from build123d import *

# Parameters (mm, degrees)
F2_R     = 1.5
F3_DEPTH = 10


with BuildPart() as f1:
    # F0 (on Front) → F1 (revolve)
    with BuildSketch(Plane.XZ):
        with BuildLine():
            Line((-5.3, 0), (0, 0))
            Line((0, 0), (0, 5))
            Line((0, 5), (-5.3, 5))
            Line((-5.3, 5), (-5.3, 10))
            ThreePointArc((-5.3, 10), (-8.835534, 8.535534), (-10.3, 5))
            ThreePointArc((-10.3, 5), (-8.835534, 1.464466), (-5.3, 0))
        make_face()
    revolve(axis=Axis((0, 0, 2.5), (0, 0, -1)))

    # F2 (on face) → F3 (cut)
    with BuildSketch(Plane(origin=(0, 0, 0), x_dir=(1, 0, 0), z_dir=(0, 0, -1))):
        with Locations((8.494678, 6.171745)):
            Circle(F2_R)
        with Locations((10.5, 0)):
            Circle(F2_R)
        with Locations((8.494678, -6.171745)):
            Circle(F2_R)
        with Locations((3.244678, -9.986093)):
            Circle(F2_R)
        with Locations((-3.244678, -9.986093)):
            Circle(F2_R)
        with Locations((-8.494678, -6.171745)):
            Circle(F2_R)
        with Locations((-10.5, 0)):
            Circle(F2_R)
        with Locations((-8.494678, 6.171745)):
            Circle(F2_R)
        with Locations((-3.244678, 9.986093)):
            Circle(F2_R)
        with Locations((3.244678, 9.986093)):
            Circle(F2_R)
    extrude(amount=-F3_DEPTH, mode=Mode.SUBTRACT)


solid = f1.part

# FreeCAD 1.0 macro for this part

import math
import FreeCAD as App
import Part
import Sketcher
from FreeCAD import Vector
Q = App.Units.Quantity

doc = App.newDocument("Part")
body = doc.addObject("PartDesign::Body", "Body")

# Sketch on XZ plane
sketch1 = body.newObject("Sketcher::SketchObject", "Sketch")
sketch1.AttachmentSupport = (doc.getObject("XZ_Plane"), [""])
sketch1.MapMode = "FlatFace"
sketch1.addGeometry(Part.LineSegment(Vector(-5.3, 0, 0), Vector(0, 0, 0)), False)
sketch1.addGeometry(Part.LineSegment(Vector(0, 0, 0), Vector(0, 5, 0)), False)
sketch1.addGeometry(Part.LineSegment(Vector(0, 5, 0), Vector(-5.3, 5, 0)), False)
sketch1.addGeometry(Part.LineSegment(Vector(-5.3, 5, 0), Vector(-5.3, 10, 0)), False)
sketch1.addGeometry(Part.ArcOfCircle(Part.Circle(Vector(-5.3, 5, 0), Vector(0, 0, 1), 5), math.radians(89.999996), math.radians(180.000004)), False)
sketch1.addGeometry(Part.ArcOfCircle(Part.Circle(Vector(-5.3, 5, 0), Vector(0, 0, 1), 5), math.radians(179.999996), math.radians(270.000004)), False)
sketch1.addConstraint(Sketcher.Constraint("Coincident", 0, 2, 1, 1))
sketch1.addConstraint(Sketcher.Constraint("Coincident", 1, 2, 2, 1))
sketch1.addConstraint(Sketcher.Constraint("Coincident", 2, 2, 3, 1))
sketch1.addConstraint(Sketcher.Constraint("Coincident", 3, 2, 4, 1))
sketch1.addConstraint(Sketcher.Constraint("Tangent", 4, 2, 5, 1))
sketch1.addConstraint(Sketcher.Constraint("Tangent", 5, 2, 0, 1))
sketch1.addConstraint(Sketcher.Constraint("Horizontal", 0))
sketch1.addConstraint(Sketcher.Constraint("Vertical", 1))
sketch1.addConstraint(Sketcher.Constraint("Horizontal", 2))
sketch1.addConstraint(Sketcher.Constraint("Vertical", 3))
sketch1.addConstraint(Sketcher.Constraint("Coincident", 0, 2, -1, 1))
sketch1.addConstraint(Sketcher.Constraint("Coincident", 2, 2, 4, 3))
sketch1.addConstraint(Sketcher.Constraint("Equal", 4, 5))
sketch1.addConstraint(Sketcher.Constraint("Horizontal", 2, 2, 4, 2))
sketch1.addConstraint(Sketcher.Constraint("Radius", 4, Q("5 mm")))
sketch1.addConstraint(Sketcher.Constraint("DistanceX", 0, 1, 0, 2, Q("5.3 mm")))
revolution = body.newObject("PartDesign::Revolution", "Revolution")
revolution.Profile = sketch1
revolution.ReferenceAxis = (sketch1, ["V_Axis"])
revolution.Angle = 360

# Sketch on XY plane
sketch2 = body.newObject("Sketcher::SketchObject", "Sketch001")
sketch2.AttachmentSupport = (doc.getObject("XY_Plane"), [""])
sketch2.MapMode = "FlatFace"
sketch2.addGeometry(Part.Circle(Vector(8.494678, -6.171745, 0), Vector(0, 0, 1), 1.5), False)
sketch2.addGeometry(Part.Circle(Vector(10.5, 0, 0), Vector(0, 0, 1), 1.5), False)
sketch2.addGeometry(Part.Circle(Vector(8.494678, 6.171745, 0), Vector(0, 0, 1), 1.5), False)
sketch2.addGeometry(Part.Circle(Vector(3.244678, 9.986093, 0), Vector(0, 0, 1), 1.5), False)
sketch2.addGeometry(Part.Circle(Vector(-3.244678, 9.986093, 0), Vector(0, 0, 1), 1.5), False)
sketch2.addGeometry(Part.Circle(Vector(-8.494678, 6.171745, 0), Vector(0, 0, 1), 1.5), False)
sketch2.addGeometry(Part.Circle(Vector(-10.5, 0, 0), Vector(0, 0, 1), 1.5), False)
sketch2.addGeometry(Part.Circle(Vector(-8.494678, -6.171745, 0), Vector(0, 0, 1), 1.5), False)
sketch2.addGeometry(Part.Circle(Vector(-3.244678, -9.986093, 0), Vector(0, 0, 1), 1.5), False)
sketch2.addGeometry(Part.Circle(Vector(3.244678, -9.986093, 0), Vector(0, 0, 1), 1.5), False)
sketch2.addConstraint(Sketcher.Constraint("Equal", 0, 1))
sketch2.addConstraint(Sketcher.Constraint("Equal", 1, 2))
sketch2.addConstraint(Sketcher.Constraint("Equal", 2, 3))
sketch2.addConstraint(Sketcher.Constraint("Equal", 3, 4))
sketch2.addConstraint(Sketcher.Constraint("Equal", 4, 5))
sketch2.addConstraint(Sketcher.Constraint("Equal", 5, 6))
sketch2.addConstraint(Sketcher.Constraint("Equal", 6, 7))
sketch2.addConstraint(Sketcher.Constraint("Equal", 7, 8))
sketch2.addConstraint(Sketcher.Constraint("Equal", 8, 9))
sketch2.addConstraint(Sketcher.Constraint("Symmetric", 0, 3, 5, 3, -1, 1))
sketch2.addConstraint(Sketcher.Constraint("Symmetric", 1, 3, 6, 3, -1, 1))
sketch2.addConstraint(Sketcher.Constraint("Symmetric", 2, 3, 7, 3, -1, 1))
sketch2.addConstraint(Sketcher.Constraint("Symmetric", 3, 3, 8, 3, -1, 1))
sketch2.addConstraint(Sketcher.Constraint("Symmetric", 4, 3, 9, 3, -1, 1))
sketch2.addConstraint(Sketcher.Constraint("Symmetric", 3, 3, 4, 3, -2))
sketch2.addConstraint(Sketcher.Constraint("Symmetric", 2, 3, 5, 3, -2))
sketch2.addConstraint(Sketcher.Constraint("PointOnObject", 1, 3, -1))
sketch2.addConstraint(Sketcher.Constraint("Diameter", 0, Q("3 mm")))
sketch2.addConstraint(Sketcher.Constraint("DistanceX", -1, 1, 1, 3, Q("10.5 mm")))
sketch2.addConstraint(Sketcher.Constraint("DistanceX", 3, 3, 2, 3, Q("5.25 mm")))
sketch2.addConstraint(Sketcher.Constraint("DistanceX", -1, 1, 3, 3, Q("3.244678 mm")))
sketch2.addConstraint(Sketcher.Constraint("DistanceY", 0, 3, 2, 3, Q("12.34349 mm")))
sketch2.addConstraint(Sketcher.Constraint("DistanceY", 2, 3, 3, 3, Q("3.814348 mm")))
pocket1 = body.newObject("PartDesign::Pocket", "Pocket")
pocket1.Profile = sketch2
pocket1.Length = 10
pocket1.Reversed = True

doc.recompute()
